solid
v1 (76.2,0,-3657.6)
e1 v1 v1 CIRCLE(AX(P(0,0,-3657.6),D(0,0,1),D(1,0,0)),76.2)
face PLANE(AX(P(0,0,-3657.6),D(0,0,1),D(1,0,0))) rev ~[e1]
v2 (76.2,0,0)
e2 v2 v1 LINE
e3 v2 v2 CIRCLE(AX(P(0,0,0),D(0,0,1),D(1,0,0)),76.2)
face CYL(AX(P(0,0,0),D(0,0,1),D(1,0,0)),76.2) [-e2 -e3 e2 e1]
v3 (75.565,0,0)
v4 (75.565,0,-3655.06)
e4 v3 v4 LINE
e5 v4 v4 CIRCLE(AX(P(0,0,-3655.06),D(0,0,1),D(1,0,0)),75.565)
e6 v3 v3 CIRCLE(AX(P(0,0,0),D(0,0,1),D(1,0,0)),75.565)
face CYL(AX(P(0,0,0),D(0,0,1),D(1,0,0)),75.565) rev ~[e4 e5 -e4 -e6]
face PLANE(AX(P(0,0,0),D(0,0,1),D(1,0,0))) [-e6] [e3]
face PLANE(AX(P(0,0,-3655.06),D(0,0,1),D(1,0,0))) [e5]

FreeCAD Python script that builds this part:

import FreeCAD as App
import Part
import Sketcher
Q = App.Units.Quantity

doc = App.newDocument("Part")
body = doc.addObject("PartDesign::Body", "Body")

sketch1 = body.newObject("Sketcher::SketchObject", "Sketch")
sketch1.AttachmentSupport = (doc.getObject("XY_Plane"), [""])
sketch1.MapMode = "FlatFace"
sketch1.addGeometry(Part.Circle(App.Vector(0, 0, 0), App.Vector(0, 0, 1), 76.2), False)
sketch1.addConstraint([
    Sketcher.Constraint("Coincident", 0, 3, -1, 1),
    Sketcher.Constraint("Diameter", 0, Q("6 in")),
])
pad1 = body.newObject("PartDesign::Pad", "Pad")
pad1.Profile = sketch1
pad1.Length = Q("144 in")
pad1.Reversed = True

sketch2 = body.newObject("Sketcher::SketchObject", "Sketch001")
sketch2.AttachmentSupport = (doc.getObject("XY_Plane"), [""])
sketch2.MapMode = "FlatFace"
sketch2.addGeometry(Part.Circle(App.Vector(0, 0, 0), App.Vector(0, 0, 1), 75.565), False)
sketch2.addConstraint([
    Sketcher.Constraint("Coincident", 0, 3, -1, 1),
    Sketcher.Constraint("Diameter", 0, Q("5.95 in")),
])
pocket1 = body.newObject("PartDesign::Pocket", "Pocket")
pocket1.Profile = sketch2
pocket1.Length = Q("143.9 in")

doc.recompute()
